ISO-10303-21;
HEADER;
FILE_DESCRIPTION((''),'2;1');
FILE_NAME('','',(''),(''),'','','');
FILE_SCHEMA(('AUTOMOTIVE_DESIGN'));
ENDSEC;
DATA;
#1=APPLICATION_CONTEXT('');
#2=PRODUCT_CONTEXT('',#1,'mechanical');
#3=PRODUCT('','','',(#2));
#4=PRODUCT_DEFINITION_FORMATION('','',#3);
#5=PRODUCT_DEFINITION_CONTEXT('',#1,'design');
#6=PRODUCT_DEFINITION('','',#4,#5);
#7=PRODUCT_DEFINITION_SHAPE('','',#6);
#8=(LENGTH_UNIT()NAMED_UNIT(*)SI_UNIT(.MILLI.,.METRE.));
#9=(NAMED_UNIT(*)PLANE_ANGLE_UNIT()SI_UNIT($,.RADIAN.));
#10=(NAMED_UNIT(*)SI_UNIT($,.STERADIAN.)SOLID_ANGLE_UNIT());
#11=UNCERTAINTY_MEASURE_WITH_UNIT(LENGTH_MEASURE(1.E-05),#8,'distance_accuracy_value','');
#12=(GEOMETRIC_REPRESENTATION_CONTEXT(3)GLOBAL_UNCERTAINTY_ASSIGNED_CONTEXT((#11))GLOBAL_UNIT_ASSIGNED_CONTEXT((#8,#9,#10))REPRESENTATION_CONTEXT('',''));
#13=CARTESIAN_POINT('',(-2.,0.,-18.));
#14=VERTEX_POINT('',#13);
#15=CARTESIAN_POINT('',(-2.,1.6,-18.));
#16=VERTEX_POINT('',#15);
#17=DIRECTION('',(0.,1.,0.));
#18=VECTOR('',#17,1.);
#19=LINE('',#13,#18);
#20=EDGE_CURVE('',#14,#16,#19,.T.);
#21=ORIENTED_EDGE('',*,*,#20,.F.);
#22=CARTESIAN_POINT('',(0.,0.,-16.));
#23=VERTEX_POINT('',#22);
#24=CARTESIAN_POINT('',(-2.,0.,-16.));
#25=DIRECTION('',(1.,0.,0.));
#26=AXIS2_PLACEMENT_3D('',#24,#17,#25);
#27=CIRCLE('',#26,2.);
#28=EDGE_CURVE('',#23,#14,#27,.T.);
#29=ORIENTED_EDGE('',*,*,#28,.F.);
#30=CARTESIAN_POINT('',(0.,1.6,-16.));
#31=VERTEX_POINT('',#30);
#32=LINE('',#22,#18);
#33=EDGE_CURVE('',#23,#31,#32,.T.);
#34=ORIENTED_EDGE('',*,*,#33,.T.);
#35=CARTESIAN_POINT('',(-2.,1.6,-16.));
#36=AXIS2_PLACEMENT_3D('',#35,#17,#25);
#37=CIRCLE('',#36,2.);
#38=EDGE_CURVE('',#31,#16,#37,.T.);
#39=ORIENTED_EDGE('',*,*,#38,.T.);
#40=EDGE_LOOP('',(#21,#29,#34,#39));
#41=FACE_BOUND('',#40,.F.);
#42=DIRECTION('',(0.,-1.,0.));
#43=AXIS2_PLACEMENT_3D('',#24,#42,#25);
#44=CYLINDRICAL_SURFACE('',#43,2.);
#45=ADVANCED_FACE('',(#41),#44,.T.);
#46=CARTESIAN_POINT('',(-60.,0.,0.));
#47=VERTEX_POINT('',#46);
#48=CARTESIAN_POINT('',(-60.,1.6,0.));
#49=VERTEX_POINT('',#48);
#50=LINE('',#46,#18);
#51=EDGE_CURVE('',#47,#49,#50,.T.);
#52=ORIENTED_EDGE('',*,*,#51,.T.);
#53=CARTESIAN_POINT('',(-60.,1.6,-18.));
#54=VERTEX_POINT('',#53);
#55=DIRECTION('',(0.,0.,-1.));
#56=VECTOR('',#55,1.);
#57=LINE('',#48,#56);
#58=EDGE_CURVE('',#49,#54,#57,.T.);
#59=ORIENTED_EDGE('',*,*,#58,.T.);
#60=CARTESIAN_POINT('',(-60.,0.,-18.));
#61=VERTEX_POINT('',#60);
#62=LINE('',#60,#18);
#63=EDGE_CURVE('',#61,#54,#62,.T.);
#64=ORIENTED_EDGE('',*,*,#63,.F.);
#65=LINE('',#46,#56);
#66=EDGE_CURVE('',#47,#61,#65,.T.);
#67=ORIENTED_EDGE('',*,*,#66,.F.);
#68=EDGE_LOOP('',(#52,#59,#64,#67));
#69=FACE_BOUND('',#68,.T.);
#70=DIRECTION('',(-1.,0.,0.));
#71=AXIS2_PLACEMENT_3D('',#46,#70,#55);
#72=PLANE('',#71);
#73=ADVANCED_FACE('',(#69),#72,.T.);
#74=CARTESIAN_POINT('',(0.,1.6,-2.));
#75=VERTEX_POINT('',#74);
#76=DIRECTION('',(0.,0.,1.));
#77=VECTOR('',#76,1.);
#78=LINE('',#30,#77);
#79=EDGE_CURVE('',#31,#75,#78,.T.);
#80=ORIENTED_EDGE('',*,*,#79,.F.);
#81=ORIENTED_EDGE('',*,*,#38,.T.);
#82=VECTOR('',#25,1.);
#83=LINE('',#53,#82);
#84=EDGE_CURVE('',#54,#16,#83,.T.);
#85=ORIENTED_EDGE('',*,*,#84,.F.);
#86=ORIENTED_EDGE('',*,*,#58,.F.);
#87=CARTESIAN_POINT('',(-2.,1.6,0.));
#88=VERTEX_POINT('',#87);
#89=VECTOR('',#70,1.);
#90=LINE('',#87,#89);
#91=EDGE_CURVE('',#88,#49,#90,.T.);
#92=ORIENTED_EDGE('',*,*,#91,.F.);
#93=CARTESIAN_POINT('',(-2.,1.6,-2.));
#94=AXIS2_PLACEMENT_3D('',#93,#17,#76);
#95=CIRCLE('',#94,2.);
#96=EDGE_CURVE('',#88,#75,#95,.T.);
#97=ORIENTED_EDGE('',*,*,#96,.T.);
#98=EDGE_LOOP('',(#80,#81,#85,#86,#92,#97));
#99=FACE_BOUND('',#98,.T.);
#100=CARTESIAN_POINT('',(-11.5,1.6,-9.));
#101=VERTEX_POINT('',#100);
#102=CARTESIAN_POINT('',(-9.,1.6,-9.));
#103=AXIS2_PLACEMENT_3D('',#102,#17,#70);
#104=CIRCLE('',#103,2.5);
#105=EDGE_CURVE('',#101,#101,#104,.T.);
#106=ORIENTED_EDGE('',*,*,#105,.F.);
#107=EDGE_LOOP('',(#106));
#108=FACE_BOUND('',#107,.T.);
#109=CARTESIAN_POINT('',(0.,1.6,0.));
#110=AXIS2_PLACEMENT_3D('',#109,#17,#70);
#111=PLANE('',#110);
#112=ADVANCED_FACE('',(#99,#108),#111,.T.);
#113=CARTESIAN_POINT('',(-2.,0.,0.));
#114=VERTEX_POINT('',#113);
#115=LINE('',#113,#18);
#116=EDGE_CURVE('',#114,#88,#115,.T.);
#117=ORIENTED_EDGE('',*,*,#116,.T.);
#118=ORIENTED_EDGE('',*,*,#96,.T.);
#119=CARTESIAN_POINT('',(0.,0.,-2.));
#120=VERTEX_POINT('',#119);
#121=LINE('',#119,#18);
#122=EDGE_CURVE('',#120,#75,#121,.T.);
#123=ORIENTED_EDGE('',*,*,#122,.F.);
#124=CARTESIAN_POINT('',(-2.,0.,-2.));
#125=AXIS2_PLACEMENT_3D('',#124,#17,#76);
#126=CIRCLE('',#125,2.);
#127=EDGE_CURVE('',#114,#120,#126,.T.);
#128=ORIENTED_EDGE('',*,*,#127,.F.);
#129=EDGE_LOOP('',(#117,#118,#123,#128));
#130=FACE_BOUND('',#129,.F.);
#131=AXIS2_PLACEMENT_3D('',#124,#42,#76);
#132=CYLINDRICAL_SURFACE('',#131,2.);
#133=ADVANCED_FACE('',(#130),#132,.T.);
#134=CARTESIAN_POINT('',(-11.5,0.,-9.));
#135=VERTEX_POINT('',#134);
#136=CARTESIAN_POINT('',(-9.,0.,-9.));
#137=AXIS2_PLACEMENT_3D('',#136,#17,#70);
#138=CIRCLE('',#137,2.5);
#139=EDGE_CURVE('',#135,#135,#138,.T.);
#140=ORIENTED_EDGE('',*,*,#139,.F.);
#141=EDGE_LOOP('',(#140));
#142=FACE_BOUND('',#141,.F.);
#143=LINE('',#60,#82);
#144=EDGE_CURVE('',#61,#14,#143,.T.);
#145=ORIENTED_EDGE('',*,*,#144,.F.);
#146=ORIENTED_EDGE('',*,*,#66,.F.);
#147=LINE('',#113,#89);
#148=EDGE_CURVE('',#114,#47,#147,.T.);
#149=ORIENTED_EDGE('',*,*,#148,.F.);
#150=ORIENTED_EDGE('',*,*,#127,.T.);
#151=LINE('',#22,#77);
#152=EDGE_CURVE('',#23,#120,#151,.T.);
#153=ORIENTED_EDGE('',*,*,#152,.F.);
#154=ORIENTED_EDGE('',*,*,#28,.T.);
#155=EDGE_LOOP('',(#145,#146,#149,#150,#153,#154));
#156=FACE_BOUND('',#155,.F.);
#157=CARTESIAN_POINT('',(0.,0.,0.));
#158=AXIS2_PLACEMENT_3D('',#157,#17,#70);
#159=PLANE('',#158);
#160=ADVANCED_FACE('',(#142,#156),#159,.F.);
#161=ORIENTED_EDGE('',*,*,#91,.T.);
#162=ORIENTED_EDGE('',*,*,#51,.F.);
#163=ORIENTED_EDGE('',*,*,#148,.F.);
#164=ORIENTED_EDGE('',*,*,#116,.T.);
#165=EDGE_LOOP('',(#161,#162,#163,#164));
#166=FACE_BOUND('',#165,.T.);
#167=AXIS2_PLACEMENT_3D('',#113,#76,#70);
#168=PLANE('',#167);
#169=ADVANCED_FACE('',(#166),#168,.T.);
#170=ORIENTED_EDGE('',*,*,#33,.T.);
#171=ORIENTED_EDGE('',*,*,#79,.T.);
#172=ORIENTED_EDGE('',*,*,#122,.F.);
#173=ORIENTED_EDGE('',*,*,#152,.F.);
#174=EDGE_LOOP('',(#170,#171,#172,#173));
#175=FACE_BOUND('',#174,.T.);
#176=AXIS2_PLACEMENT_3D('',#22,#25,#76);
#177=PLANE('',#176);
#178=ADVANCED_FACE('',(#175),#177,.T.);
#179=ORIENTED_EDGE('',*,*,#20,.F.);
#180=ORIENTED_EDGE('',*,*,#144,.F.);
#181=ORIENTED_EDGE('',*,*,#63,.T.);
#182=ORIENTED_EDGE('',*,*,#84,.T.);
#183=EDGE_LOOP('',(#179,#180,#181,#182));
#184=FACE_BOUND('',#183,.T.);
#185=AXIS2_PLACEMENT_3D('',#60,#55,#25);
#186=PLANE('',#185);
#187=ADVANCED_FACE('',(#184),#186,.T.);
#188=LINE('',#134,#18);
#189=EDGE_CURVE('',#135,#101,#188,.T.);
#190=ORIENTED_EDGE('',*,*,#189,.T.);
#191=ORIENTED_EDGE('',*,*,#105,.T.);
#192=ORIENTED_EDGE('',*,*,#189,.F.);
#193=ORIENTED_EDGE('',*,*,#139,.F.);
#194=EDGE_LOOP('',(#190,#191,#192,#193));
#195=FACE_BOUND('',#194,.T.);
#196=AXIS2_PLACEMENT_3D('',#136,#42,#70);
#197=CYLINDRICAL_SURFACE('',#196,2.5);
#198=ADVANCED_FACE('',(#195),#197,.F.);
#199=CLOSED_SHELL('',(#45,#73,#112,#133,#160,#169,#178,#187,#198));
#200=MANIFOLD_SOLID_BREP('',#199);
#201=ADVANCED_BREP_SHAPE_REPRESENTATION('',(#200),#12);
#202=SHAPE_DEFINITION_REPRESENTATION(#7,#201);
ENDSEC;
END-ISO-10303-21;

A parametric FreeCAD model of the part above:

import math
import FreeCAD as App
import Part
import Sketcher

V = App.Vector

doc = App.newDocument("Part")
params = doc.addObject("Spreadsheet::Sheet", "Params")
for row, (alias, value) in enumerate([
    ("sketch1_diameter", "5 mm"),
    ("sketch1_radius", "2 mm"),
    ("sketch1_height", "18 mm"),
    ("pad1_length", "1.6 mm"),
], start=1):
    params.set(f"A{row}", alias)
    params.set(f"B{row}", "=" + value)
    params.setAlias(f"B{row}", alias)

body = doc.addObject("PartDesign::Body", "Body")

# Sketch on XZ plane
sketch1 = doc.addObject("Sketcher::SketchObject", "Sketch")
body.addObject(sketch1)
sketch1.AttachmentSupport = (doc.XZ_Plane, [""])
sketch1.MapMode = "FlatFace"
sketch1.addGeometry([
    Part.LineSegment(V(-60, 0, 0), V(-2, 0, 0)),  # 0
    Part.ArcOfCircle(Part.Circle(V(-2, -2, 0), V(0, 0, 1), 2), math.radians(0), math.radians(90)),  # 1
    Part.LineSegment(V(0, -2, 0), V(0, -16, 0)),  # 2
    Part.ArcOfCircle(Part.Circle(V(-2, -16, 0), V(0, 0, 1), 2), math.radians(-90), math.radians(0)),  # 3
    Part.LineSegment(V(-2, -18, 0), V(-60, -18, 0)),  # 4
    Part.LineSegment(V(-60, -18, 0), V(-60, 0, 0)),  # 5
    Part.Circle(V(-9, -9, 0), V(0, 0, 1), 2.5),  # 6
], False)
sketch1.addConstraint([
    Sketcher.Constraint("Tangent", 0, 2, 1, 2),
    Sketcher.Constraint("Tangent", 1, 1, 2, 1),
    Sketcher.Constraint("Tangent", 2, 2, 3, 2),
    Sketcher.Constraint("Tangent", 3, 1, 4, 1),
    Sketcher.Constraint("Coincident", 4, 2, 5, 1),
    Sketcher.Constraint("Coincident", 5, 2, 0, 1),
    Sketcher.Constraint("Horizontal", 0),
    Sketcher.Constraint("Vertical", 2),
    Sketcher.Constraint("Horizontal", 4),
    Sketcher.Constraint("Vertical", 5),
    Sketcher.Constraint("Equal", 1, 3),
    Sketcher.Constraint("PointOnObject", 0, 2, -1),
    Sketcher.Constraint("PointOnObject", 1, 1, -2),
    Sketcher.Constraint("Diameter", 6, 5.0),
    Sketcher.Constraint("Radius", 1, 2.0),
    Sketcher.Constraint("DistanceY", 5, 1, 5, 2, 18.0),
    Sketcher.Constraint("DistanceX", 6, 3, -1, 1, 9.0),
    Sketcher.Constraint("DistanceY", 6, 3, -1, 1, 9.0),
    Sketcher.Constraint("DistanceX", 4, 2, -1, 1, 60.0),
])
sketch1.setExpression("Constraints[13]", "Params.sketch1_diameter")
sketch1.setExpression("Constraints[14]", "Params.sketch1_radius")
sketch1.setExpression("Constraints[15]", "Params.sketch1_height")
pad1 = doc.addObject("PartDesign::Pad", "Pad")
body.addObject(pad1)
pad1.Profile = sketch1
pad1.setExpression("Length", "Params.pad1_length")
pad1.Reversed = True

doc.recompute()
